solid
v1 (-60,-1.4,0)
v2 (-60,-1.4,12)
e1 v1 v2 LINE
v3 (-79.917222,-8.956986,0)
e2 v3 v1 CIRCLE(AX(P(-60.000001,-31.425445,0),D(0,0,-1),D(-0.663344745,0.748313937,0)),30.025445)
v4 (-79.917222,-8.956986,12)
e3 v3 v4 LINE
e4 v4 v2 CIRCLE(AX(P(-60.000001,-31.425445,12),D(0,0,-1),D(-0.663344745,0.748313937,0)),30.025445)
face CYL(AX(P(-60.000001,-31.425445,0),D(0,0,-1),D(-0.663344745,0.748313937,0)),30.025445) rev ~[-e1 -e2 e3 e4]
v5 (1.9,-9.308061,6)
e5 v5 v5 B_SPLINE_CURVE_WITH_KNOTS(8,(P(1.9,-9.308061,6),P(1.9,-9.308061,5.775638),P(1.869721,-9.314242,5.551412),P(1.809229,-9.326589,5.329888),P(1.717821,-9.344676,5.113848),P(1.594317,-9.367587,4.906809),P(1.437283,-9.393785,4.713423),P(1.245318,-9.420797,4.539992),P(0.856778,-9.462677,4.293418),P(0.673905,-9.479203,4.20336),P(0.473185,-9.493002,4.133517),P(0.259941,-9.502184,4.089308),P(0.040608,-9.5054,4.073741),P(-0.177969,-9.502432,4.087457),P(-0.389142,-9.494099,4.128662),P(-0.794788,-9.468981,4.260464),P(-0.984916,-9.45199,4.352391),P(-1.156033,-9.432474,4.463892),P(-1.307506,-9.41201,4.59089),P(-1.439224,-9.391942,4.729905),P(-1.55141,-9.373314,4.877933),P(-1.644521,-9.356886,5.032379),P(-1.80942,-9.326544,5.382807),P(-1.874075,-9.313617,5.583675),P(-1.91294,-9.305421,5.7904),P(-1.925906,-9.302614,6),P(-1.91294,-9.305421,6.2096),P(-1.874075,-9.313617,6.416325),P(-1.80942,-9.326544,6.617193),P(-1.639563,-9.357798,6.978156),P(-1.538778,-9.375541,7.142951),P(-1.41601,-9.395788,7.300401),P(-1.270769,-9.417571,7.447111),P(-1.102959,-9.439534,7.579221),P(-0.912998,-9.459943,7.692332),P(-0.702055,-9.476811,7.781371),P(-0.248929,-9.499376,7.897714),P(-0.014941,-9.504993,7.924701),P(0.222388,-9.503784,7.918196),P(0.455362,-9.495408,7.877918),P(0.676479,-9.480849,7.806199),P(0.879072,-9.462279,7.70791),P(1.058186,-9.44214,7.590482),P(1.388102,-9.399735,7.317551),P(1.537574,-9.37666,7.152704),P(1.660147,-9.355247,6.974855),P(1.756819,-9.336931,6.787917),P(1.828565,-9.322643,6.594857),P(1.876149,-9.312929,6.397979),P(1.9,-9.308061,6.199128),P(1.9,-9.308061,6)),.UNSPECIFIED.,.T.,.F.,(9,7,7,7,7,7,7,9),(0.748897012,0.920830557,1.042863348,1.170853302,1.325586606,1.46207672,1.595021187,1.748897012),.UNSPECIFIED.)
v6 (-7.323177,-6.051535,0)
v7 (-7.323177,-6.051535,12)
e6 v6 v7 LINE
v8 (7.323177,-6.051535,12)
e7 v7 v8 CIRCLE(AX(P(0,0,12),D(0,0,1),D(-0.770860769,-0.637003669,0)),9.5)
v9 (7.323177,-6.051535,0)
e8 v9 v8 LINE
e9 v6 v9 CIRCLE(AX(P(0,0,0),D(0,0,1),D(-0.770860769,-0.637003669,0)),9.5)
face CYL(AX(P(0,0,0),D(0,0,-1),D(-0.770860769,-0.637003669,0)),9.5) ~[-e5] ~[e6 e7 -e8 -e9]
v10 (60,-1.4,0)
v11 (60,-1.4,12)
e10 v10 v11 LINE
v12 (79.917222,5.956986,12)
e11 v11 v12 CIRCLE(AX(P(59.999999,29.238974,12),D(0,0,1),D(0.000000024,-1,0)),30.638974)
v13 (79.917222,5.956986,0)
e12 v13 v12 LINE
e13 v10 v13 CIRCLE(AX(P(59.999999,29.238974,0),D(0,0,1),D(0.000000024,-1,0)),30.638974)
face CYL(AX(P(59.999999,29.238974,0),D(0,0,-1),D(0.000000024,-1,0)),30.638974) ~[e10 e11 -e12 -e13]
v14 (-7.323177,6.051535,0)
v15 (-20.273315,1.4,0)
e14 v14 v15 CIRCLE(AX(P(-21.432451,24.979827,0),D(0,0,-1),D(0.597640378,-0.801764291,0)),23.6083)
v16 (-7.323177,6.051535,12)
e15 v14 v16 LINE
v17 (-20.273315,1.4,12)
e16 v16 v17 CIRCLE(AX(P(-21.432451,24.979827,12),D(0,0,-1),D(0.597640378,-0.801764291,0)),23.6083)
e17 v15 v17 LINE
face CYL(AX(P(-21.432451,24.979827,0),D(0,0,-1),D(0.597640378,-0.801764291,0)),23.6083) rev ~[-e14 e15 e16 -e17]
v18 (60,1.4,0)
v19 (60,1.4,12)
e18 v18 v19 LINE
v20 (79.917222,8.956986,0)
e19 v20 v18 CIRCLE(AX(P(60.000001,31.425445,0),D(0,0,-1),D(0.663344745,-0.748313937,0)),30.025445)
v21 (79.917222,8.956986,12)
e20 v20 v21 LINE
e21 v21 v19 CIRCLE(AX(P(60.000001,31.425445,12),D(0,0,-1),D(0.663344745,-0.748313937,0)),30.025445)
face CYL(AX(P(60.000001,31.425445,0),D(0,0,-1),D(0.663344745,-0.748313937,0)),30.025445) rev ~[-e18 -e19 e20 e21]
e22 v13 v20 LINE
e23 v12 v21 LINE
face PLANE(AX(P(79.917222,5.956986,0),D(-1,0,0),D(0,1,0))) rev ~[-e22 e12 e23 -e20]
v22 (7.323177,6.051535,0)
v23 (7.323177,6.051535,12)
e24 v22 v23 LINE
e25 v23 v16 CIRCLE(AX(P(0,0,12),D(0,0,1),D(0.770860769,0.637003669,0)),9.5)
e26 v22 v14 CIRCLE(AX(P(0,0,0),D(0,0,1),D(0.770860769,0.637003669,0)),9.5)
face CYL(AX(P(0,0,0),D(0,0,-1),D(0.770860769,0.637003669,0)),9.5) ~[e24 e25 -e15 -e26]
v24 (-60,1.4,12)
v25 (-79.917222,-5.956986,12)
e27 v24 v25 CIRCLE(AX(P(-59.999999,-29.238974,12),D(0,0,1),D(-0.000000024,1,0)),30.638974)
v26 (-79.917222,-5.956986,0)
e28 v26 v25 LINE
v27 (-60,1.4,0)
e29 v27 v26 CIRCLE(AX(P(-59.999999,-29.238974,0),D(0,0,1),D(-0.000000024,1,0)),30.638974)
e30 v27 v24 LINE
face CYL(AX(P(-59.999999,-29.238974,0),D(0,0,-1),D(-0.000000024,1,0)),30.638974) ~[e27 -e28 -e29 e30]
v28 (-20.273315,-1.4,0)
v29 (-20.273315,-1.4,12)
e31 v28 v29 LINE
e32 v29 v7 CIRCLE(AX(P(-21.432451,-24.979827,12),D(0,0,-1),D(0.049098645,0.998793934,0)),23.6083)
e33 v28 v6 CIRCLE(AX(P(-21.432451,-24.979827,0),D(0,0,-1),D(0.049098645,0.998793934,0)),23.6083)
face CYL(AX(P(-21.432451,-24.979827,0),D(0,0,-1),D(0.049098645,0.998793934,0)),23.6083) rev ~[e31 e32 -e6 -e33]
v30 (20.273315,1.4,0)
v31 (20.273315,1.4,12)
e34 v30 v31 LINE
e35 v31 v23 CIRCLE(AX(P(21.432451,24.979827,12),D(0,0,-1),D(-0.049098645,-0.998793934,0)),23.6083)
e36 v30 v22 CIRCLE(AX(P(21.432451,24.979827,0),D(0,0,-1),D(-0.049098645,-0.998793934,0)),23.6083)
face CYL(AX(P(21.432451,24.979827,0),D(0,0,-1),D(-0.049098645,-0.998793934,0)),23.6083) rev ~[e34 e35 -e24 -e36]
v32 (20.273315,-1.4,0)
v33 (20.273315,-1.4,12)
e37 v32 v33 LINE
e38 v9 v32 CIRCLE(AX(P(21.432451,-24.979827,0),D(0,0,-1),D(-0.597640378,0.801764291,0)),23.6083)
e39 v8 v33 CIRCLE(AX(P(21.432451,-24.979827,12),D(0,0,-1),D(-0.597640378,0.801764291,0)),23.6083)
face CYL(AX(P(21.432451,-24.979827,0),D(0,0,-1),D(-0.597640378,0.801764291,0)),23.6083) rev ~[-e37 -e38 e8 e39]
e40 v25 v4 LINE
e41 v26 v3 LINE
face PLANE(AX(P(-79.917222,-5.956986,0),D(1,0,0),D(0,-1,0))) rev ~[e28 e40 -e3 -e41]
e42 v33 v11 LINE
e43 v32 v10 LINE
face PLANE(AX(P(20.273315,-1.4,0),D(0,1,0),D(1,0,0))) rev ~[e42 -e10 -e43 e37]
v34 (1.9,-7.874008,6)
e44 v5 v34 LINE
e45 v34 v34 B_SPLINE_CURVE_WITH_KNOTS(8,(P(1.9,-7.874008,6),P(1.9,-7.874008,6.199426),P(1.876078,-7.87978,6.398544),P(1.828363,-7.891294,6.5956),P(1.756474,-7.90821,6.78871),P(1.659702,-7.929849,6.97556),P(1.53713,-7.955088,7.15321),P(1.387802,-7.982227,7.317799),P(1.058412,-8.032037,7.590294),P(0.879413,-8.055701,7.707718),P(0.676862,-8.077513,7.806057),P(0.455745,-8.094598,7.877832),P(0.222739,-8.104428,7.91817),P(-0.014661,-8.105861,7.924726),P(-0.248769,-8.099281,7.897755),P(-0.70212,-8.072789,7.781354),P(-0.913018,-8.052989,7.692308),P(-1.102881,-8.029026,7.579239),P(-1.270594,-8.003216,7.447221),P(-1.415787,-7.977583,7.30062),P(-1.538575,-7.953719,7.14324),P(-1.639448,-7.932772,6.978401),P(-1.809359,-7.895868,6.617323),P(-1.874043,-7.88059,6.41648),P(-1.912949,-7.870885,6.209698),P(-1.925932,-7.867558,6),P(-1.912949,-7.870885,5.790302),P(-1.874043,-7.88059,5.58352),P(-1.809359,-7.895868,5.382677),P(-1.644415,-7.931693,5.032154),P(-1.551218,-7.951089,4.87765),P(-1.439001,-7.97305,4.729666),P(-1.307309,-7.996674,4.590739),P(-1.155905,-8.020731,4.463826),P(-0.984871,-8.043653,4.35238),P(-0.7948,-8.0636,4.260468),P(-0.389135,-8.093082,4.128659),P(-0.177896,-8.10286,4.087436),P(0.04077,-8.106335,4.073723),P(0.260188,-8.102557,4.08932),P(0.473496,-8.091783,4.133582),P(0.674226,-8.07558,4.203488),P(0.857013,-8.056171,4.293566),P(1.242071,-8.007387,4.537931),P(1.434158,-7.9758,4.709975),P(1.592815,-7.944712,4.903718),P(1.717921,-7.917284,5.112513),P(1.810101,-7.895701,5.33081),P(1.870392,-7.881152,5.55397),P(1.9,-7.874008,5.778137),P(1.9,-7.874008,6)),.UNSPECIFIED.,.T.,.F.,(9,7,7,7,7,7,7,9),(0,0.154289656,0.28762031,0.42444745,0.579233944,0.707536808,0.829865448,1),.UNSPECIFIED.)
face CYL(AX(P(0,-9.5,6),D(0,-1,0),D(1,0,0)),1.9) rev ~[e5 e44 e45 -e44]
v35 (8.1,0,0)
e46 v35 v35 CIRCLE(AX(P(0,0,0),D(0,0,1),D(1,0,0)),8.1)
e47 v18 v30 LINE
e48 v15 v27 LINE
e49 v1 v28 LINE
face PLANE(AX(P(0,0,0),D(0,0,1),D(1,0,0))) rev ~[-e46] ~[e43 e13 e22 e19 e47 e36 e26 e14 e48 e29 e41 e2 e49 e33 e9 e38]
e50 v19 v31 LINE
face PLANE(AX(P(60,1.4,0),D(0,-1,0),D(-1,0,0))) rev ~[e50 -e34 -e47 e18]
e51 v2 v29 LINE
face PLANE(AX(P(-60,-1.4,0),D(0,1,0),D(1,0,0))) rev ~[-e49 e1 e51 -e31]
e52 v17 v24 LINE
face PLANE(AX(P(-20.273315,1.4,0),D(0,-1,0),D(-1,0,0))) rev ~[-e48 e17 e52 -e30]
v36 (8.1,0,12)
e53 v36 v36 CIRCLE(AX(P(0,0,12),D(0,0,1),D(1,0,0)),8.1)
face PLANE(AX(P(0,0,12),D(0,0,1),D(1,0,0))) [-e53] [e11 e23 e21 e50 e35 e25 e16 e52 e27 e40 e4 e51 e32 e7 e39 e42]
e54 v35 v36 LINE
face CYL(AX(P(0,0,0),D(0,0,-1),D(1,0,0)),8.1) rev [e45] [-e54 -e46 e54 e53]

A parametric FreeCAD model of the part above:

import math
import FreeCAD as App
import Part
import Sketcher

doc = App.newDocument("Part")
body = doc.addObject("PartDesign::Body", "Body")

# Sketch on XY plane
sketch1 = doc.addObject("Sketcher::SketchObject", "Sketch")
body.addObject(sketch1)
sketch1.AttachmentSupport = (doc.XY_Plane, [""])
sketch1.MapMode = "FlatFace"
sketch1.addGeometry([
    Part.ArcOfCircle(Part.Circle(App.Vector(21.432451, 24.979827, 0), App.Vector(0, 0, 1), 23.6083), math.radians(-126.701088), math.radians(-92.814277)),  # 0
    Part.ArcOfCircle(Part.Circle(App.Vector(0, 0, 0), App.Vector(0, 0, 1), 9.5), math.radians(39.568752), math.radians(140.431248)),  # 1
    Part.ArcOfCircle(Part.Circle(App.Vector(-21.432451, 24.979827, 0), App.Vector(0, 0, 1), 23.6083), math.radians(-87.185723), math.radians(-53.298912)),  # 2
    Part.LineSegment(App.Vector(-20.273315, 1.4, 0), App.Vector(-60, 1.4, 0)),  # 3
    Part.ArcOfCircle(Part.Circle(App.Vector(-59.999999, -29.238974, 0), App.Vector(0, 0, 1), 30.638974), math.radians(90.000001), math.radians(130.546252)),  # 4
    Part.LineSegment(App.Vector(-79.917222, -5.956986, 0), App.Vector(-79.917222, -8.956986, 0)),  # 5
    Part.ArcOfCircle(Part.Circle(App.Vector(-60.000001, -31.425445, 0), App.Vector(0, 0, 1), 30.025445), math.radians(89.999998), math.radians(131.555464)),  # 6
    Part.LineSegment(App.Vector(-60, -1.4, 0), App.Vector(-20.273315, -1.4, 0)),  # 7
    Part.ArcOfCircle(Part.Circle(App.Vector(-21.432451, -24.979827, 0), App.Vector(0, 0, 1), 23.6083), math.radians(53.298912), math.radians(87.185723)),  # 8
    Part.ArcOfCircle(Part.Circle(App.Vector(0, 0, 0), App.Vector(0, 0, 1), 9.5), math.radians(-140.431248), math.radians(-39.568752)),  # 9
    Part.ArcOfCircle(Part.Circle(App.Vector(21.432451, -24.979827, 0), App.Vector(0, 0, 1), 23.6083), math.radians(92.814277), math.radians(126.701088)),  # 10
    Part.LineSegment(App.Vector(20.273315, -1.4, 0), App.Vector(60, -1.4, 0)),  # 11
    Part.ArcOfCircle(Part.Circle(App.Vector(59.999999, 29.238974, 0), App.Vector(0, 0, 1), 30.638974), math.radians(-89.999999), math.radians(-49.453748)),  # 12
    Part.LineSegment(App.Vector(79.917222, 5.956986, 0), App.Vector(79.917222, 8.956986, 0)),  # 13
    Part.ArcOfCircle(Part.Circle(App.Vector(60.000001, 31.425445, 0), App.Vector(0, 0, 1), 30.025445), math.radians(-90.000002), math.radians(-48.444536)),  # 14
    Part.LineSegment(App.Vector(60, 1.4, 0), App.Vector(20.273315, 1.4, 0)),  # 15
    Part.Circle(App.Vector(0, 0, 0), App.Vector(0, 0, 1), 8.1),  # 16
], False)
sketch1.addConstraint([
    Sketcher.Constraint("Coincident", 0, 1, 1, 1),
    Sketcher.Constraint("Coincident", 1, 2, 2, 2),
    Sketcher.Constraint("Coincident", 2, 1, 3, 1),
    Sketcher.Constraint("Coincident", 3, 2, 4, 1),
    Sketcher.Constraint("Coincident", 4, 2, 5, 1),
    Sketcher.Constraint("Coincident", 5, 2, 6, 2),
    Sketcher.Constraint("Coincident", 6, 1, 7, 1),
    Sketcher.Constraint("Coincident", 7, 2, 8, 2),
    Sketcher.Constraint("Coincident", 8, 1, 9, 1),
    Sketcher.Constraint("Coincident", 9, 2, 10, 2),
    Sketcher.Constraint("Coincident", 10, 1, 11, 1),
    Sketcher.Constraint("Coincident", 11, 2, 12, 1),
    Sketcher.Constraint("Coincident", 12, 2, 13, 1),
    Sketcher.Constraint("Coincident", 13, 2, 14, 2),
    Sketcher.Constraint("Coincident", 14, 1, 15, 1),
    Sketcher.Constraint("Coincident", 15, 2, 0, 2),
    Sketcher.Constraint("Horizontal", 3),
    Sketcher.Constraint("Vertical", 5),
    Sketcher.Constraint("Horizontal", 7),
    Sketcher.Constraint("Horizontal", 11),
    Sketcher.Constraint("Vertical", 13),
    Sketcher.Constraint("Horizontal", 15),
    Sketcher.Constraint("Coincident", 1, 3, -1, 1),
    Sketcher.Constraint("Coincident", 9, 3, -1, 1),
    Sketcher.Constraint("Coincident", 16, 3, -1, 1),
    Sketcher.Constraint("Diameter", 16, 16.2),
    Sketcher.Constraint("Radius", 1, 9.5),
    Sketcher.Constraint("Radius", 9, 9.5),
    Sketcher.Constraint("DistanceY", 5, 2, 5, 1, 3.0),
    Sketcher.Constraint("DistanceY", 13, 1, 13, 2, 3.0),
    Sketcher.Constraint("DistanceX", 4, 3, -1, 1, 59.999999),
    Sketcher.Constraint("DistanceX", 6, 3, -1, 1, 60.000001),
    Sketcher.Constraint("DistanceX", -1, 1, 12, 3, 59.999999),
    Sketcher.Constraint("DistanceX", -1, 1, 14, 3, 60.000001),
    Sketcher.Constraint("DistanceX", 3, 2, -1, 1, 60.0),
    Sketcher.Constraint("DistanceX", 6, 1, -1, 1, 60.0),
    Sketcher.Constraint("DistanceX", -1, 1, 11, 2, 60.0),
    Sketcher.Constraint("DistanceX", -1, 1, 14, 1, 60.0),
    Sketcher.Constraint("DistanceY", -1, 1, 2, 1, 1.4),
    Sketcher.Constraint("DistanceY", 6, 1, -1, 1, 1.4),
    Sketcher.Constraint("DistanceY", 10, 1, -1, 1, 1.4),
    Sketcher.Constraint("DistanceY", -1, 1, 14, 1, 1.4),
    Sketcher.Constraint("Radius", 0, 23.6083),
    Sketcher.Constraint("Radius", 2, 23.6083),
    Sketcher.Constraint("Radius", 8, 23.6083),
    Sketcher.Constraint("Radius", 10, 23.6083),
    Sketcher.Constraint("Radius", 4, 30.638974),
    Sketcher.Constraint("Radius", 6, 30.025445),
    Sketcher.Constraint("Radius", 12, 30.638974),
    Sketcher.Constraint("Radius", 14, 30.025445),
    Sketcher.Constraint("DistanceX", 2, 3, 0, 3, 42.864901),
    Sketcher.Constraint("DistanceY", 4, 3, 2, 3, 54.218801),
    Sketcher.Constraint("DistanceY", 4, 3, 0, 3, 54.218801),
    Sketcher.Constraint("DistanceX", 8, 3, 0, 3, 42.864901),
    Sketcher.Constraint("DistanceX", 8, 3, 10, 3, 42.864901),
    Sketcher.Constraint("DistanceY", 10, 3, 12, 3, 54.218801),
    Sketcher.Constraint("DistanceX", 3, 2, 3, 1, 39.726685),
    Sketcher.Constraint("DistanceX", 7, 1, 7, 2, 39.726685),
])
pad1 = doc.addObject("PartDesign::Pad", "Pad")
body.addObject(pad1)
pad1.Profile = sketch1
pad1.Length = 12

# Sketch on XZ plane
sketch2 = doc.addObject("Sketcher::SketchObject", "Sketch001")
body.addObject(sketch2)
sketch2.AttachmentSupport = (doc.XZ_Plane, [""])
sketch2.MapMode = "FlatFace"
sketch2.AttachmentOffset = App.Placement(App.Vector(0, 0, 9.5), App.Rotation())
sketch2.addGeometry(Part.Circle(App.Vector(0, 6, 0), App.Vector(0, 0, 1), 1.9), False)
sketch2.addConstraint([
    Sketcher.Constraint("PointOnObject", 0, 3, -2),
    Sketcher.Constraint("Diameter", 0, 3.8),
    Sketcher.Constraint("DistanceY", -1, 1, 0, 3, 6.0),
])
pocket1 = doc.addObject("PartDesign::Pocket", "Pocket")
body.addObject(pocket1)
pocket1.Profile = sketch2
pocket1.Length = 8

doc.recompute()
